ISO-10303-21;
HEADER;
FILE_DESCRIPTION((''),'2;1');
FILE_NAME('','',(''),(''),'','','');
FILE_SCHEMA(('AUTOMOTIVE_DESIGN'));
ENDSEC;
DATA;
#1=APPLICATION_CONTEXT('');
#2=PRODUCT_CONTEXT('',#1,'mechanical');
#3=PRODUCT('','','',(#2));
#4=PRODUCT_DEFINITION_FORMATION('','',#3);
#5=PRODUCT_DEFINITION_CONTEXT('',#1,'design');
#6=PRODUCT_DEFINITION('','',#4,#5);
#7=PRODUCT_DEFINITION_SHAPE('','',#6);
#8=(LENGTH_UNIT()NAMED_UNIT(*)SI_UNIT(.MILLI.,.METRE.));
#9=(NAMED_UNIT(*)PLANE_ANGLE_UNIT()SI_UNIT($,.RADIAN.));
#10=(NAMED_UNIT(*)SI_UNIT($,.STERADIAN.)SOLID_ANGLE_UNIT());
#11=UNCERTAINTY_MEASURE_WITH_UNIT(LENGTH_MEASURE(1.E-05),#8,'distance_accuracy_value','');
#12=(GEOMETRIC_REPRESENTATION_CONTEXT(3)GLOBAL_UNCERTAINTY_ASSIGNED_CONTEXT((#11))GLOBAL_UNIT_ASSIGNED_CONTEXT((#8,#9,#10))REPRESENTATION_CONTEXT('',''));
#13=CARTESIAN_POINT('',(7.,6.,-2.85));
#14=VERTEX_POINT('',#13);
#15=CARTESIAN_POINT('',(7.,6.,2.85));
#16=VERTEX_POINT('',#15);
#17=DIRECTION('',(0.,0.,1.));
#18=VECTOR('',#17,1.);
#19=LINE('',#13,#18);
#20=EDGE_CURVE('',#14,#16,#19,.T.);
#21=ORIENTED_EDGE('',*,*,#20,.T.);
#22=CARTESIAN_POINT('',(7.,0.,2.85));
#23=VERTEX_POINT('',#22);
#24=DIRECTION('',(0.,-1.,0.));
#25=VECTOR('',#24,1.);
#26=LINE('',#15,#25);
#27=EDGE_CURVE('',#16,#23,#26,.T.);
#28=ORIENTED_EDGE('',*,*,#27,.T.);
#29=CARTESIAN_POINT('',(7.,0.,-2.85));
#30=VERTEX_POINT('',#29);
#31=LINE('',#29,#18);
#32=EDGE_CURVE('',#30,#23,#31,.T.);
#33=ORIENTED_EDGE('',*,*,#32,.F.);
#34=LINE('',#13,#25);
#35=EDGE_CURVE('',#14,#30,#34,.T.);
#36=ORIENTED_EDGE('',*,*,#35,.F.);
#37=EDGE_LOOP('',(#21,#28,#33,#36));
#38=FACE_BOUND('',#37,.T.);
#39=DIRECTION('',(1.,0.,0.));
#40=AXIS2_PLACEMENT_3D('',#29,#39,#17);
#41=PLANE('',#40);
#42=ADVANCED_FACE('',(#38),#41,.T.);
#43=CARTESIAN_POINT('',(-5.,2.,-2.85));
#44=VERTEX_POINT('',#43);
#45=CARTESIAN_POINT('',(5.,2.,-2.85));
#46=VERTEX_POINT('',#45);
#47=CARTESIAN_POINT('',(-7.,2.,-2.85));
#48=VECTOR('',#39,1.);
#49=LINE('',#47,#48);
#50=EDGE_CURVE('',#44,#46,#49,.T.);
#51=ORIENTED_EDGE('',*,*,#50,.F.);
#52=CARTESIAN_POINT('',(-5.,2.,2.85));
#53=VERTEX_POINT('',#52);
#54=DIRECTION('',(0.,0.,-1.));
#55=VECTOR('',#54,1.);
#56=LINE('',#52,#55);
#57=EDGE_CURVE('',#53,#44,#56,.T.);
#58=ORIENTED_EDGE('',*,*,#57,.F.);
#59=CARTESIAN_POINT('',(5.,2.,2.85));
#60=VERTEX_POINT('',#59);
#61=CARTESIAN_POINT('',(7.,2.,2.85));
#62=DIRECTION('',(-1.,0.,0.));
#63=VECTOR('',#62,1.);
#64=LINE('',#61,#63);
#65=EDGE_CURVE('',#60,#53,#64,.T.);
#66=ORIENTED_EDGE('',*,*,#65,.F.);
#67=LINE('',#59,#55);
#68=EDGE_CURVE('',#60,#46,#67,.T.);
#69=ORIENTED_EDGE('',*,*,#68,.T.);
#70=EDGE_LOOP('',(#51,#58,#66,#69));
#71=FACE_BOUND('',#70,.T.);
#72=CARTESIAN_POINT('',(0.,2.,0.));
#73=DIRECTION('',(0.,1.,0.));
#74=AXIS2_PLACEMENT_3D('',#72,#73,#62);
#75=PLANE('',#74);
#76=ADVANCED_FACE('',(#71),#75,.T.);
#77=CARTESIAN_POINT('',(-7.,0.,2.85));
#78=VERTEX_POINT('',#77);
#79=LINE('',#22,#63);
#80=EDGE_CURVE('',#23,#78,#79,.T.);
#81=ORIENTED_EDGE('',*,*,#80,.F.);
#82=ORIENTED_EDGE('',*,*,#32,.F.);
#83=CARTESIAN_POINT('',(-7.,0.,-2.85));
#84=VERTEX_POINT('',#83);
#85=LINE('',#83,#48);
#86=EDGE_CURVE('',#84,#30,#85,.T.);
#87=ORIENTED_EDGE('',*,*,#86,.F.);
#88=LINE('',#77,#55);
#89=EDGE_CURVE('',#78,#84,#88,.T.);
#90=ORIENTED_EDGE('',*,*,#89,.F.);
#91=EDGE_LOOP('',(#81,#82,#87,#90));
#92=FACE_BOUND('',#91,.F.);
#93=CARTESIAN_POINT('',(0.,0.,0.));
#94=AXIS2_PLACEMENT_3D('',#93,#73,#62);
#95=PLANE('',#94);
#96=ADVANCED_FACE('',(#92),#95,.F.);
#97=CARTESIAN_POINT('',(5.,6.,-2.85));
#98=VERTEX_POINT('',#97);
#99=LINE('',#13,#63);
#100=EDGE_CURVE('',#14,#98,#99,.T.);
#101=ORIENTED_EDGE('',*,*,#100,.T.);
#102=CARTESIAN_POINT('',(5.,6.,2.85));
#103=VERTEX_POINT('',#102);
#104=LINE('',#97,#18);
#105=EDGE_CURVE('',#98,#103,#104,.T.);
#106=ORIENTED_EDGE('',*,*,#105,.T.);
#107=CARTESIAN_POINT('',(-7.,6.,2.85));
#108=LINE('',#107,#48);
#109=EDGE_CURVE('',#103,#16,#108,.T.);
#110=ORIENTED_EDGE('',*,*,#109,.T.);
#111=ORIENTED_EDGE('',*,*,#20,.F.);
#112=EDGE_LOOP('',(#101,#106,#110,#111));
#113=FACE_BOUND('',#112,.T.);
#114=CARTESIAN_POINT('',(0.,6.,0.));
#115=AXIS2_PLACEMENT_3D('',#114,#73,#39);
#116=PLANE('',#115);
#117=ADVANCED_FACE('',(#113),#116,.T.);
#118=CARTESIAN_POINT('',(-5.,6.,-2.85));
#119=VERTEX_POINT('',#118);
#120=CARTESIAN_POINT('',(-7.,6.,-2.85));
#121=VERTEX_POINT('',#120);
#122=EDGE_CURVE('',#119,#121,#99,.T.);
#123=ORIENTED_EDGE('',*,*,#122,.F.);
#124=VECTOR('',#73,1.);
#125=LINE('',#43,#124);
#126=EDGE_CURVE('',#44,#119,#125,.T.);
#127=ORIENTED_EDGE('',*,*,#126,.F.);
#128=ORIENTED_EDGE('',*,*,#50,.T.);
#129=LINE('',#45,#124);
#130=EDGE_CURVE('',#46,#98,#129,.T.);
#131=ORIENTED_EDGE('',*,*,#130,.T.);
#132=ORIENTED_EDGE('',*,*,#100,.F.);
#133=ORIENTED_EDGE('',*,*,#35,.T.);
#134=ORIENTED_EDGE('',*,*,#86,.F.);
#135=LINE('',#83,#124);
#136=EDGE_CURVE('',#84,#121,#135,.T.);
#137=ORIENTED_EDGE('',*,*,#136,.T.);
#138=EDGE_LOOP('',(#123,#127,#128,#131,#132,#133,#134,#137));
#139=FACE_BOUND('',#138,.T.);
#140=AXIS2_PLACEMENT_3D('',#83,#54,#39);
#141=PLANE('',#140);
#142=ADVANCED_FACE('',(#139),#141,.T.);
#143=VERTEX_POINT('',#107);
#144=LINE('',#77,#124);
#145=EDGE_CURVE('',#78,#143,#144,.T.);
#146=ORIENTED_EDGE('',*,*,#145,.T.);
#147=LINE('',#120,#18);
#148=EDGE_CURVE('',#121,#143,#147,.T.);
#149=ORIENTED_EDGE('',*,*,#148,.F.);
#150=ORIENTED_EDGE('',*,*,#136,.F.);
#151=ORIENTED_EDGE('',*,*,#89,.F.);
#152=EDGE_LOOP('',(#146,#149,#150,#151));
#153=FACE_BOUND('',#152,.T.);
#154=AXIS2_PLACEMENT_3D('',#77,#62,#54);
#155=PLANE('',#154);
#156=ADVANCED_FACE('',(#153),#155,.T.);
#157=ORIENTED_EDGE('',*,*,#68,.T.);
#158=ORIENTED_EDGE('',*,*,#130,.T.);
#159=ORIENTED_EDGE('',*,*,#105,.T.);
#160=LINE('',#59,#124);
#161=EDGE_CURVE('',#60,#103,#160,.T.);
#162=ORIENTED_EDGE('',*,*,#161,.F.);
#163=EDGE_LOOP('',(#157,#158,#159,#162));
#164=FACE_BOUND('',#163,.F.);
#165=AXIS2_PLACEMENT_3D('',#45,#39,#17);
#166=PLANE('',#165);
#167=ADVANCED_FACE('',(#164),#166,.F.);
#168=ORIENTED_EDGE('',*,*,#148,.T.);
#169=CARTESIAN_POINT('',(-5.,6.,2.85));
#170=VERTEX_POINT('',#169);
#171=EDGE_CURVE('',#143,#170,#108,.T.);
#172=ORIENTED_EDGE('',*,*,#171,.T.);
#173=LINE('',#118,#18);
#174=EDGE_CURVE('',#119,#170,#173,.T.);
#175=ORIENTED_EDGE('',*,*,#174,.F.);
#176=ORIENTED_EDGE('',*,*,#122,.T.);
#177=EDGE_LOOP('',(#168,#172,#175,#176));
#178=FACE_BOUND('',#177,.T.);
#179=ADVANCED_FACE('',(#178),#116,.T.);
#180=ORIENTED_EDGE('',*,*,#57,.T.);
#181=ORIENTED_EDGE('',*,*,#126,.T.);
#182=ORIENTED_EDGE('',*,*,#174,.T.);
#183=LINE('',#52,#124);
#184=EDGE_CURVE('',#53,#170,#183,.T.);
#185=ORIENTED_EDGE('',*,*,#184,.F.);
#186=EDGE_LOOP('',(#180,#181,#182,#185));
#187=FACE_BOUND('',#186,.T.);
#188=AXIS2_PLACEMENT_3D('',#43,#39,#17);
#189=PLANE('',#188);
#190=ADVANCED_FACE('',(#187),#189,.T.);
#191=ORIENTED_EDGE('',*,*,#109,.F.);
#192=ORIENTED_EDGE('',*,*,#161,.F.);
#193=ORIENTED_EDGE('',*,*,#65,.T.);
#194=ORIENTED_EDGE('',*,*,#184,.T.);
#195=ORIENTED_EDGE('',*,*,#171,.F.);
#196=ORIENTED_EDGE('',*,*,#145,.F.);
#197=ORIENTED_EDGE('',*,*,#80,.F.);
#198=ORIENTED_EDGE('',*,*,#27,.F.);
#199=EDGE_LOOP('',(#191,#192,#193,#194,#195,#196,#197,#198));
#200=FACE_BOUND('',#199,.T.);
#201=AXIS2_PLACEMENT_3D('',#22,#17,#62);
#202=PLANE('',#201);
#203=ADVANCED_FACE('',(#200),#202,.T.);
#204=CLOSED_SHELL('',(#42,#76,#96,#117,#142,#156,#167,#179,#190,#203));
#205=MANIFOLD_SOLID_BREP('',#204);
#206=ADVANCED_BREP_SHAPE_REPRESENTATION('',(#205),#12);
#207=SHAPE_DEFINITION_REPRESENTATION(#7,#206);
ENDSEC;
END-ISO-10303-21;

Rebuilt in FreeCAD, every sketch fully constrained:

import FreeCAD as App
import Part
import Sketcher

V = App.Vector

doc = App.newDocument("Part")
body = doc.addObject("PartDesign::Body", "Body")

sketch1 = body.newObject("Sketcher::SketchObject", "Sketch")
sketch1.AttachmentSupport = (doc.getObject("XZ_Plane"), [""])
sketch1.MapMode = "FlatFace"
sketch1.addGeometry(Part.LineSegment(V(7, -2.85, 0), V(-7, -2.85, 0)), False)
sketch1.addGeometry(Part.LineSegment(V(-7, -2.85, 0), V(-7, 2.85, 0)), False)
sketch1.addGeometry(Part.LineSegment(V(-7, 2.85, 0), V(7, 2.85, 0)), False)
sketch1.addGeometry(Part.LineSegment(V(7, 2.85, 0), V(7, -2.85, 0)), False)
sketch1.addConstraint(Sketcher.Constraint("Coincident", 0, 2, 1, 1))
sketch1.addConstraint(Sketcher.Constraint("Coincident", 1, 2, 2, 1))
sketch1.addConstraint(Sketcher.Constraint("Coincident", 2, 2, 3, 1))
sketch1.addConstraint(Sketcher.Constraint("Coincident", 3, 2, 0, 1))
sketch1.addConstraint(Sketcher.Constraint("Horizontal", 0))
sketch1.addConstraint(Sketcher.Constraint("Vertical", 1))
sketch1.addConstraint(Sketcher.Constraint("Horizontal", 2))
sketch1.addConstraint(Sketcher.Constraint("Vertical", 3))
sketch1.addConstraint(Sketcher.Constraint("Symmetric", 0, 2, 2, 2, -1, 1))
sketch1.addConstraint(Sketcher.Constraint("DistanceX", 0, 2, 0, 1, 14.0))
sketch1.addConstraint(Sketcher.Constraint("DistanceY", 1, 1, 1, 2, 5.7))
pad1 = body.newObject("PartDesign::Pad", "Pad")
pad1.Profile = sketch1
pad1.Length = 2
pad1.Reversed = True

sketch2 = body.newObject("Sketcher::SketchObject", "Sketch001")
sketch2.AttachmentSupport = (doc.getObject("XZ_Plane"), [""])
sketch2.MapMode = "FlatFace"
sketch2.AttachmentOffset = App.Placement(V(0, 0, -2), App.Rotation())
sketch2.addGeometry(Part.LineSegment(V(7, -2.85, 0), V(5, -2.85, 0)), False)
sketch2.addGeometry(Part.LineSegment(V(5, -2.85, 0), V(5, 2.85, 0)), False)
sketch2.addGeometry(Part.LineSegment(V(5, 2.85, 0), V(7, 2.85, 0)), False)
sketch2.addGeometry(Part.LineSegment(V(7, 2.85, 0), V(7, -2.85, 0)), False)
sketch2.addGeometry(Part.LineSegment(V(-5, -2.85, 0), V(-7, -2.85, 0)), False)
sketch2.addGeometry(Part.LineSegment(V(-7, -2.85, 0), V(-7, 2.85, 0)), False)
sketch2.addGeometry(Part.LineSegment(V(-7, 2.85, 0), V(-5, 2.85, 0)), False)
sketch2.addGeometry(Part.LineSegment(V(-5, 2.85, 0), V(-5, -2.85, 0)), False)
sketch2.addConstraint(Sketcher.Constraint("Coincident", 0, 2, 1, 1))
sketch2.addConstraint(Sketcher.Constraint("Coincident", 1, 2, 2, 1))
sketch2.addConstraint(Sketcher.Constraint("Coincident", 2, 2, 3, 1))
sketch2.addConstraint(Sketcher.Constraint("Coincident", 3, 2, 0, 1))
sketch2.addConstraint(Sketcher.Constraint("Coincident", 4, 2, 5, 1))
sketch2.addConstraint(Sketcher.Constraint("Coincident", 5, 2, 6, 1))
sketch2.addConstraint(Sketcher.Constraint("Coincident", 6, 2, 7, 1))
sketch2.addConstraint(Sketcher.Constraint("Coincident", 7, 2, 4, 1))
sketch2.addConstraint(Sketcher.Constraint("Horizontal", 0))
sketch2.addConstraint(Sketcher.Constraint("Vertical", 1))
sketch2.addConstraint(Sketcher.Constraint("Horizontal", 2))
sketch2.addConstraint(Sketcher.Constraint("Vertical", 3))
sketch2.addConstraint(Sketcher.Constraint("Horizontal", 4))
sketch2.addConstraint(Sketcher.Constraint("Vertical", 5))
sketch2.addConstraint(Sketcher.Constraint("Horizontal", 6))
sketch2.addConstraint(Sketcher.Constraint("Vertical", 7))
sketch2.addConstraint(Sketcher.Constraint("Symmetric", 2, 2, 4, 2, -1, 1))
sketch2.addConstraint(Sketcher.Constraint("Symmetric", 0, 2, 6, 2, -1, 1))
sketch2.addConstraint(Sketcher.Constraint("Horizontal", 3, 2, 4, 2))
sketch2.addConstraint(Sketcher.Constraint("DistanceX", 0, 2, 0, 1, 2.0))
sketch2.addConstraint(Sketcher.Constraint("DistanceY", 1, 1, 1, 2, 5.7))
sketch2.addConstraint(Sketcher.Constraint("DistanceX", -1, 1, 0, 2, 5.0))
pad2 = body.newObject("PartDesign::Pad", "Pad001")
pad2.Profile = sketch2
pad2.Length = 4
pad2.Reversed = True

doc.recompute()
